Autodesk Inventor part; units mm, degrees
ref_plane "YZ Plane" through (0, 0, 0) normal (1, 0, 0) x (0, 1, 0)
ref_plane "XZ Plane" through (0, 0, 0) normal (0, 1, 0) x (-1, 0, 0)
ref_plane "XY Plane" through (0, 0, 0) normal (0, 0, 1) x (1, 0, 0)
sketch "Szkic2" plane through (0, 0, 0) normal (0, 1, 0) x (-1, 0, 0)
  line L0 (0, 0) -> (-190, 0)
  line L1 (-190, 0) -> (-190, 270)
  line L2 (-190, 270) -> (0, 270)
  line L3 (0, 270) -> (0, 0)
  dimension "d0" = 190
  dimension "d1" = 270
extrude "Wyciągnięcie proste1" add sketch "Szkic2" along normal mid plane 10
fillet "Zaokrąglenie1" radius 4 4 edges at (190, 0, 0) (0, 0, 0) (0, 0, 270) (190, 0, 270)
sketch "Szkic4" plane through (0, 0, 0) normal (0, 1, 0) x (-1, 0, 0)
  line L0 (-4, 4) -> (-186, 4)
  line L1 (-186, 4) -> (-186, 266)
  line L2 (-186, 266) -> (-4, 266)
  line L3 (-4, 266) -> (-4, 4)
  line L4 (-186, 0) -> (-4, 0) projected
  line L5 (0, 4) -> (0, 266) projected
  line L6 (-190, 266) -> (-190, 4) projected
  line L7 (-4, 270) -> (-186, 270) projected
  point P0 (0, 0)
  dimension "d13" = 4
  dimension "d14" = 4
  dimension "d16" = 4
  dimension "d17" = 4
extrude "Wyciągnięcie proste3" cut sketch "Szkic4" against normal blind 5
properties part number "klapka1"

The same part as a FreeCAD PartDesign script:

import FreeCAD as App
import Part
import Sketcher

V = App.Vector


def edges_at(feature, points):
    """Names of the edges that pass closest to the given points."""
    edges = feature.Shape.Edges
    near = lambda p: min(range(len(edges)), key=lambda i: edges[i].distToShape(Part.Vertex(*p))[0])
    return sorted({f"Edge{near(p) + 1}" for p in points})


def add_polygon(sketch, points):
    """Adds a closed chain of lines whose ends are joined by coincident constraints."""
    first, n = sketch.GeometryCount, len(points)
    for a, b in zip(points, points[1:] + points[:1]):
        sketch.addGeometry(Part.LineSegment(App.Vector(*a, 0), App.Vector(*b, 0)), False)
    for i in range(n):
        sketch.addConstraint(Sketcher.Constraint("Coincident", first + i, 2, first + (i + 1) % n, 1))

doc = App.newDocument("Part")
body = doc.addObject("PartDesign::Body", "Body")

sketch1 = body.newObject("Sketcher::SketchObject", "Sketch")
sketch1.AttachmentSupport = (doc.getObject("XZ_Plane"), [""])
sketch1.MapMode = "FlatFace"
add_polygon(sketch1, [(190, 0), (0, 0), (0, 270), (190, 270)])
sketch1.addConstraint(Sketcher.Constraint("Horizontal", 0))
sketch1.addConstraint(Sketcher.Constraint("Vertical", 1))
sketch1.addConstraint(Sketcher.Constraint("Horizontal", 2))
sketch1.addConstraint(Sketcher.Constraint("Vertical", 3))
sketch1.addConstraint(Sketcher.Constraint("Coincident", 0, 2, -1, 1))
sketch1.addConstraint(Sketcher.Constraint("DistanceX", 0, 2, 0, 1, 190.0))
sketch1.addConstraint(Sketcher.Constraint("DistanceY", 1, 1, 1, 2, 270.0))
pad1 = body.newObject("PartDesign::Pad", "Pad")
pad1.Profile = sketch1
pad1.Length = 10
pad1.Midplane = True
doc.recompute()

fillet = body.newObject("PartDesign::Fillet", "Fillet")
fillet.Base = (pad1, edges_at(pad1, [
    (190, 0, 0),
    (0, 0, 0),
    (0, 0, 270),
    (190, 0, 270),
]))
fillet.Radius = 4

sketch2 = body.newObject("Sketcher::SketchObject", "Sketch001")
sketch2.AttachmentSupport = (doc.getObject("XZ_Plane"), [""])
sketch2.MapMode = "FlatFace"
add_polygon(sketch2, [(186, 4), (4, 4), (4, 266), (186, 266)])
sketch2.addConstraint(Sketcher.Constraint("Horizontal", 0))
sketch2.addConstraint(Sketcher.Constraint("Vertical", 1))
sketch2.addConstraint(Sketcher.Constraint("Horizontal", 2))
sketch2.addConstraint(Sketcher.Constraint("Vertical", 3))
sketch2.addConstraint(Sketcher.Constraint("DistanceX", -1, 1, 0, 2, 4.0))
sketch2.addConstraint(Sketcher.Constraint("DistanceY", -1, 1, 0, 2, 4.0))
sketch2.addConstraint(Sketcher.Constraint("DistanceX", 0, 2, 0, 1, 182.0))
sketch2.addConstraint(Sketcher.Constraint("DistanceY", 1, 1, 1, 2, 262.0))
pocket1 = body.newObject("PartDesign::Pocket", "Pocket")
pocket1.Profile = sketch2
pocket1.Length = 5
pocket1.Reversed = True

doc.recompute()
